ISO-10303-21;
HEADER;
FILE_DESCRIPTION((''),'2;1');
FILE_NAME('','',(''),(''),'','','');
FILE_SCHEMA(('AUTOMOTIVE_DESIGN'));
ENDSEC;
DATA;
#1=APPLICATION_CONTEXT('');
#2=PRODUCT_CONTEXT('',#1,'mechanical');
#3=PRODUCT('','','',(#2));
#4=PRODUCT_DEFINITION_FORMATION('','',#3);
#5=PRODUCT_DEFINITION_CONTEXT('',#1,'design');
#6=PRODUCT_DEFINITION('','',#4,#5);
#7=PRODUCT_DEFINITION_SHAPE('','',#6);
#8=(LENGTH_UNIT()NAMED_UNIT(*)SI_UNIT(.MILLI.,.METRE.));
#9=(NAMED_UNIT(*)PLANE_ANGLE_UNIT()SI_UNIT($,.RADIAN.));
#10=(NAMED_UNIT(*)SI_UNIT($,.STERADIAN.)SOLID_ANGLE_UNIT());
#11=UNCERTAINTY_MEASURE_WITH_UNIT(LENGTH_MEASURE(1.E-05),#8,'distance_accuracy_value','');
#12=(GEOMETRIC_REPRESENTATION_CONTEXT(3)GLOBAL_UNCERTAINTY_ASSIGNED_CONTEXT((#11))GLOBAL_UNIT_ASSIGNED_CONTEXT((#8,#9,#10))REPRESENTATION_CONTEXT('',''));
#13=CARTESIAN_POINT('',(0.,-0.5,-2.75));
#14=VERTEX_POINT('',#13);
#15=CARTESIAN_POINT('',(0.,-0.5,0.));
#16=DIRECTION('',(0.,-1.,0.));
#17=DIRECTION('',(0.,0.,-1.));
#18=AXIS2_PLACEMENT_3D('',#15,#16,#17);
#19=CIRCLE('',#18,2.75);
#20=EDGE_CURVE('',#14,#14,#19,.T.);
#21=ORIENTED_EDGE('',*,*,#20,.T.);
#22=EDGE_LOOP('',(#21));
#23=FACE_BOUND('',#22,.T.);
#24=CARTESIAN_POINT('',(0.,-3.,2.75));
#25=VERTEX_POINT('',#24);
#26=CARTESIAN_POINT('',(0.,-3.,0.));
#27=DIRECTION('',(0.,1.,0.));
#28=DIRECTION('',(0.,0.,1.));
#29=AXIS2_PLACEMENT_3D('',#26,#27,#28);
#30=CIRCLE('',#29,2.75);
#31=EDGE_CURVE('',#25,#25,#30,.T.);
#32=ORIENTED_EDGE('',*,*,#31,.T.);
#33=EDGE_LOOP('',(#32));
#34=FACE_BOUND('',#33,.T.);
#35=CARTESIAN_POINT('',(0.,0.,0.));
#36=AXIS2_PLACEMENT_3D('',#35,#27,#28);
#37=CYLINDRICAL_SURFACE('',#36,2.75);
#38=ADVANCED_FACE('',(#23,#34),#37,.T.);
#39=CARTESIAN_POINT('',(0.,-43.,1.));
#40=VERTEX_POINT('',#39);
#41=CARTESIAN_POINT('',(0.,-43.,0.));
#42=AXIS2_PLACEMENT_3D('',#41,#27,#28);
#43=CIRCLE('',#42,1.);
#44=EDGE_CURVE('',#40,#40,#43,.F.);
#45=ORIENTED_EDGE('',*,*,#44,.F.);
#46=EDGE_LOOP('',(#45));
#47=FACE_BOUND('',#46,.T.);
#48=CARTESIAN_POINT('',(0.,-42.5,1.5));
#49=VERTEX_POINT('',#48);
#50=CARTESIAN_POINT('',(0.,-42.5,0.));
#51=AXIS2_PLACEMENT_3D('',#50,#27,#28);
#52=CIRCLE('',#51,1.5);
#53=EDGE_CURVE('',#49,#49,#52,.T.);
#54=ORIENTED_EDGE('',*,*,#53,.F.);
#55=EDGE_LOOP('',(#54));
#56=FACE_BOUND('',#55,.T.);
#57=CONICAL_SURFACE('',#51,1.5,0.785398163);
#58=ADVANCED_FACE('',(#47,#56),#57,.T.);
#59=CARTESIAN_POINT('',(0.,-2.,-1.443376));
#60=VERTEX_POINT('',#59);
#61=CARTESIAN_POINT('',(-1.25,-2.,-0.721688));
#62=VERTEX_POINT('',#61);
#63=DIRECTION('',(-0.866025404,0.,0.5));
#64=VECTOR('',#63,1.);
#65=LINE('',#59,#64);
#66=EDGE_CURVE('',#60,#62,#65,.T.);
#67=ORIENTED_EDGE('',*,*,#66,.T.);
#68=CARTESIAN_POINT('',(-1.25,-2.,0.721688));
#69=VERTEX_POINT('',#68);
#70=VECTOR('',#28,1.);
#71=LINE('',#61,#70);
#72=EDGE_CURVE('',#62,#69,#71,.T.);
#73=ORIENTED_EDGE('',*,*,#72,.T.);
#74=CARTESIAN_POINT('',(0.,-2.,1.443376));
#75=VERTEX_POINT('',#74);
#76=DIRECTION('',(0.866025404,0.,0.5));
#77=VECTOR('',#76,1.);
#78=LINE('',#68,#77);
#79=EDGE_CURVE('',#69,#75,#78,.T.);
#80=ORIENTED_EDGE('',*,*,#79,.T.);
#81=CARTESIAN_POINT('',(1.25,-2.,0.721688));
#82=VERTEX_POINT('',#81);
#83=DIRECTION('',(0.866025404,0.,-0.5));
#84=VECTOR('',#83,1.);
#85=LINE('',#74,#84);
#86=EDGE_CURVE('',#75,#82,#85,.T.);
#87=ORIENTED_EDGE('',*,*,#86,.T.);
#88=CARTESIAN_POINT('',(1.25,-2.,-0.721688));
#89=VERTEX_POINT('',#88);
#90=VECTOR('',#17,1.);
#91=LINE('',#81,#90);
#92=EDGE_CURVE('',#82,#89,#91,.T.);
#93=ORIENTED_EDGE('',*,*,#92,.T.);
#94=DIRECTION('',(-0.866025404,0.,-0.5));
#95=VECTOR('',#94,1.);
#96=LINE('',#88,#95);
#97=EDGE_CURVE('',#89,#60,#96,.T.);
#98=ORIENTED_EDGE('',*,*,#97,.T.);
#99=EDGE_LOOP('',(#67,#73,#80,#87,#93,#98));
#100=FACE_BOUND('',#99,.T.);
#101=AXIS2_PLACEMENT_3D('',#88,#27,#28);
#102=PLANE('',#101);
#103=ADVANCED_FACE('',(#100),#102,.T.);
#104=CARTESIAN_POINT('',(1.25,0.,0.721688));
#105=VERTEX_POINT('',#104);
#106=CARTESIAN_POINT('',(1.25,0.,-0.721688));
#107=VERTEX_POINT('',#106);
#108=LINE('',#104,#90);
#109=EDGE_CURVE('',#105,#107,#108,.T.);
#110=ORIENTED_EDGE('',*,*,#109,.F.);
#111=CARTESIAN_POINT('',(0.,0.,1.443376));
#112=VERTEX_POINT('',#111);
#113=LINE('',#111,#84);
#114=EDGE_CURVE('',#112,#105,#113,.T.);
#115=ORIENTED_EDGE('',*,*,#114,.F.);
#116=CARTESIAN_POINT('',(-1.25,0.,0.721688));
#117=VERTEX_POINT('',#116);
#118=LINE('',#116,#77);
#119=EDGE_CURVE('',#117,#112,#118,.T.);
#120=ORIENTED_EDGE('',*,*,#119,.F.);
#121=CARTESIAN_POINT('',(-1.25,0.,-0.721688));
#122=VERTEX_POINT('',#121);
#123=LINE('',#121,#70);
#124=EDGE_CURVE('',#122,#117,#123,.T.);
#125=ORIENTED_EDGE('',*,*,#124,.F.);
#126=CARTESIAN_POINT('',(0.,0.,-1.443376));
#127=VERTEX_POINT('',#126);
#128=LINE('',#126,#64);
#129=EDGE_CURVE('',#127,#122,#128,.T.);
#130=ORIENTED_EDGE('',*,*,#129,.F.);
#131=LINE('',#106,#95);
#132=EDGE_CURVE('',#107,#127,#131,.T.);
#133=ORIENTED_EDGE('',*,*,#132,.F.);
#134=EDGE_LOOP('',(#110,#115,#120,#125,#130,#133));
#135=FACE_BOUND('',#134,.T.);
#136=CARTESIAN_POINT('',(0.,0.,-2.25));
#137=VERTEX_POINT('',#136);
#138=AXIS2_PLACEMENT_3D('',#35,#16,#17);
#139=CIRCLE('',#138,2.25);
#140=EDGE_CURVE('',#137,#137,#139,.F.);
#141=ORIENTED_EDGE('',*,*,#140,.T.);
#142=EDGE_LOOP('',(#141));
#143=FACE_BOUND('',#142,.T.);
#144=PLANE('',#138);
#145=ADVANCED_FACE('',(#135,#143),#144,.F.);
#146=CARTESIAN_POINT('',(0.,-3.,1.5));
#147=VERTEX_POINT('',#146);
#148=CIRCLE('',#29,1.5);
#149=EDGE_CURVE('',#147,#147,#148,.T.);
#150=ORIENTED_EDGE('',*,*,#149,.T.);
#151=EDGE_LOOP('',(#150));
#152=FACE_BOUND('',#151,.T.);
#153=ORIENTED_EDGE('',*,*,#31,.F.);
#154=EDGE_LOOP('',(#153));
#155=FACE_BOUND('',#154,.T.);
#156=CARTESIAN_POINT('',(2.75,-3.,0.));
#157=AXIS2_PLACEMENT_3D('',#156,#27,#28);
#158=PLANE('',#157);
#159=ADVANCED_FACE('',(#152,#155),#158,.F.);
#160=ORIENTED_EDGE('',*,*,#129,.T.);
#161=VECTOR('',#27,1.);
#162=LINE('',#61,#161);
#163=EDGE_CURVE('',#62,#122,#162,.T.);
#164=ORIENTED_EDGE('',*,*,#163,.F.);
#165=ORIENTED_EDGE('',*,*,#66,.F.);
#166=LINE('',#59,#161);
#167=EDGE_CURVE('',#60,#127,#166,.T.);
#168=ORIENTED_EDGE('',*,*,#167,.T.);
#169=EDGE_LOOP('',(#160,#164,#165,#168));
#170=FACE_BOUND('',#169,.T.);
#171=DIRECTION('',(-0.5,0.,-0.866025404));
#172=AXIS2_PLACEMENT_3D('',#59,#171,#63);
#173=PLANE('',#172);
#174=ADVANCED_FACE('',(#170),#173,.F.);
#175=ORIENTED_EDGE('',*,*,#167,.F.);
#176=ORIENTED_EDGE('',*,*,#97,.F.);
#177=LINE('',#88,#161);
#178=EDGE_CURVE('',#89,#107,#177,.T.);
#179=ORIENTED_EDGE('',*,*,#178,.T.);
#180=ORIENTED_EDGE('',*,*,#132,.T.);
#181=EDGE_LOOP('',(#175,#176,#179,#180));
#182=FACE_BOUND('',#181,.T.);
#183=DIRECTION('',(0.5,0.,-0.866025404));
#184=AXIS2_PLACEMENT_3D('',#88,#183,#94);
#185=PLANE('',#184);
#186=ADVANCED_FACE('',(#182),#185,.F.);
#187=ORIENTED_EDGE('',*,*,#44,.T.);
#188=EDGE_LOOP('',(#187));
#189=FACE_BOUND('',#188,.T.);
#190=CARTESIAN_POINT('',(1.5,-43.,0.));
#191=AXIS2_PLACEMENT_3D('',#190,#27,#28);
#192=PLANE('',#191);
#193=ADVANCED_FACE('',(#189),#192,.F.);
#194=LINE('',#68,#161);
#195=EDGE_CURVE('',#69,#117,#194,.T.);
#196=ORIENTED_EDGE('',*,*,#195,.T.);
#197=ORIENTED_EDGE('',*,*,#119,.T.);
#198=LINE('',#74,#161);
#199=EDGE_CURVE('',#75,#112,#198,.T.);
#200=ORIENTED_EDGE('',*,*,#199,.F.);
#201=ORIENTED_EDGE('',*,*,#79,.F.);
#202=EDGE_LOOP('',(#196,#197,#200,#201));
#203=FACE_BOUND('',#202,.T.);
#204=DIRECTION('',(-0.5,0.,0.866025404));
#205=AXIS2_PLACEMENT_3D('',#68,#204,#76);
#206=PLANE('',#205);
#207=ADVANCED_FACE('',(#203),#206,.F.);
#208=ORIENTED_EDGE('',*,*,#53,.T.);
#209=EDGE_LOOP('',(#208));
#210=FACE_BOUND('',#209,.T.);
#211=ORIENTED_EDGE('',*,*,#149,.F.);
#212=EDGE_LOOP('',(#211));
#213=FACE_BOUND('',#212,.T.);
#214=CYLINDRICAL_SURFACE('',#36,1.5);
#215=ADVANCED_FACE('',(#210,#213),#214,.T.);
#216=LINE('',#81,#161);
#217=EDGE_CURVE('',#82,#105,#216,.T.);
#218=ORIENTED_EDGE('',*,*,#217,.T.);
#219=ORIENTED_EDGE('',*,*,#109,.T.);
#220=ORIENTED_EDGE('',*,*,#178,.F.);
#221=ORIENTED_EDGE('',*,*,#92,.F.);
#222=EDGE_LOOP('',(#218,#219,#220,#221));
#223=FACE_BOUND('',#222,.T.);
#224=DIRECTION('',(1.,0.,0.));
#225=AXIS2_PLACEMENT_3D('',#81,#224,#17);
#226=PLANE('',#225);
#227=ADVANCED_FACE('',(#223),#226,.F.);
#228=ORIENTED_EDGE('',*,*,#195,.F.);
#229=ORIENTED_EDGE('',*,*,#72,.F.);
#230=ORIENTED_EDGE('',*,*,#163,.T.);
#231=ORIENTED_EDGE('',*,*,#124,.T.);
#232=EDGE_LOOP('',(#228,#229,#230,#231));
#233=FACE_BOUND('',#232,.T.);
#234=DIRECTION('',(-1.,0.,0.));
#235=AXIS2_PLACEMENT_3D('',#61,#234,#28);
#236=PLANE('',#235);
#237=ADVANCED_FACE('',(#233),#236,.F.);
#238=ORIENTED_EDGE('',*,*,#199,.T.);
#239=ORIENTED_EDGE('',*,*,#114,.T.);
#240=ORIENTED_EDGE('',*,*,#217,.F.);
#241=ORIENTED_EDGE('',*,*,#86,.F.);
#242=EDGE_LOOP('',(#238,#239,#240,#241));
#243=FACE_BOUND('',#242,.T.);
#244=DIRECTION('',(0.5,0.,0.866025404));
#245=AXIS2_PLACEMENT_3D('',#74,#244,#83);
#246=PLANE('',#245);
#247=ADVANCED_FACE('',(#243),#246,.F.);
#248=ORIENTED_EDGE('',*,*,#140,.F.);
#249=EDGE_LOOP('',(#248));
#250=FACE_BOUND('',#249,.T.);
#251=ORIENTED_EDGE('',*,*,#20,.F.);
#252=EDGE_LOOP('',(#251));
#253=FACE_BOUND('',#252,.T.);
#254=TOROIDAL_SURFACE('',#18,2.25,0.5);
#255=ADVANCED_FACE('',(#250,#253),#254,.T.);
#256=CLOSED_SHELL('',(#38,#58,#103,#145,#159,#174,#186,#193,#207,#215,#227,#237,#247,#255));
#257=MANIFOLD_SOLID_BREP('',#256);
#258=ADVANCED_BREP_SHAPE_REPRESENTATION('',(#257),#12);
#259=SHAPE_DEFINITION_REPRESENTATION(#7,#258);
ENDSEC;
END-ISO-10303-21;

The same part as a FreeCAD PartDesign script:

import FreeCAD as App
import Part
import Sketcher

V = App.Vector
Q = App.Units.Quantity


def edges_at(feature, points):
    """Names of the edges that pass closest to the given points."""
    edges = feature.Shape.Edges
    near = lambda p: min(range(len(edges)), key=lambda i: edges[i].distToShape(Part.Vertex(*p))[0])
    return sorted({f"Edge{near(p) + 1}" for p in points})


def add_polygon(sketch, points):
    """Adds a closed chain of lines whose ends are joined by coincident constraints."""
    first, n = sketch.GeometryCount, len(points)
    for a, b in zip(points, points[1:] + points[:1]):
        sketch.addGeometry(Part.LineSegment(App.Vector(*a, 0), App.Vector(*b, 0)), False)
    for i in range(n):
        sketch.addConstraint(Sketcher.Constraint("Coincident", first + i, 2, first + (i + 1) % n, 1))

doc = App.newDocument("Part")
body = doc.addObject("PartDesign::Body", "Body")

sketch1 = body.newObject("Sketcher::SketchObject", "Sketch")
sketch1.AttachmentSupport = (doc.getObject("XY_Plane"), [""])
sketch1.MapMode = "FlatFace"
add_polygon(sketch1, [(2.8, 0), (0, 0), (0, -43), (1.5, -43), (1.5, -3), (2.8, -3)])
sketch1.addConstraint(Sketcher.Constraint("Horizontal", 0))
sketch1.addConstraint(Sketcher.Constraint("Vertical", 1))
sketch1.addConstraint(Sketcher.Constraint("Horizontal", 2))
sketch1.addConstraint(Sketcher.Constraint("Vertical", 3))
sketch1.addConstraint(Sketcher.Constraint("Horizontal", 4))
sketch1.addConstraint(Sketcher.Constraint("Vertical", 5))
sketch1.addConstraint(Sketcher.Constraint("Coincident", 0, 2, -1, 1))
sketch1.addConstraint(Sketcher.Constraint("DistanceY", 1, 2, 1, 1, Q("43 mm")))
sketch1.addConstraint(Sketcher.Constraint("DistanceY", 3, 1, 3, 2, Q("40 mm")))
sketch1.addConstraint(Sketcher.Constraint("DistanceX", 2, 1, 2, 2, Q("1.5 mm")))
sketch1.addConstraint(Sketcher.Constraint("DistanceX", 0, 2, 0, 1, Q("2.75 mm")))
revolution = body.newObject("PartDesign::Revolution", "Revolution")
revolution.Profile = sketch1
revolution.ReferenceAxis = (sketch1, ["V_Axis"])
revolution.Angle = 360

sketch2 = body.newObject("Sketcher::SketchObject", "Sketch001")
sketch2.AttachmentSupport = (doc.getObject("XZ_Plane"), [""])
sketch2.MapMode = "FlatFace"
add_polygon(sketch2, [(1.2, -0.7), (0, -1.4), (-1.2, -0.7), (-1.2, 0.7), (0, 1.4), (1.2, 0.7)])
sketch2.addConstraint(Sketcher.Constraint("Vertical", 2))
sketch2.addConstraint(Sketcher.Constraint("Vertical", 5))
sketch2.addConstraint(Sketcher.Constraint("Symmetric", 0, 2, 3, 2, -1, 1))
sketch2.addConstraint(Sketcher.Constraint("Symmetric", 1, 2, 4, 2, -1, 1))
sketch2.addConstraint(Sketcher.Constraint("PointOnObject", 0, 2, -2))
sketch2.addConstraint(Sketcher.Constraint("Parallel", 0, 3))
sketch2.addConstraint(Sketcher.Constraint("Horizontal", 2, 2, 4, 2))
sketch2.addConstraint(Sketcher.Constraint("Angle", 0, Q("-150 deg")))
sketch2.addConstraint(Sketcher.Constraint("DistanceX", 2, 2, 4, 2, Q("2.5 mm")))
sketch2.addConstraint(Sketcher.Constraint("DistanceY", 2, 1, 2, 2, Q("1.443376 mm")))
pocket1 = body.newObject("PartDesign::Pocket", "Pocket")
pocket1.Profile = sketch2
pocket1.Length = 2
pocket1.Reversed = True
doc.recompute()

chamfer = body.newObject("PartDesign::Chamfer", "Chamfer")
chamfer.Base = (pocket1, edges_at(pocket1, [(0, -43, -1.5)]))
chamfer.Size = 0.5
doc.recompute()

fillet = body.newObject("PartDesign::Fillet", "Fillet")
fillet.Base = (chamfer, edges_at(chamfer, [(0, 0, -2.75)]))
fillet.Radius = 0.5

doc.recompute()
